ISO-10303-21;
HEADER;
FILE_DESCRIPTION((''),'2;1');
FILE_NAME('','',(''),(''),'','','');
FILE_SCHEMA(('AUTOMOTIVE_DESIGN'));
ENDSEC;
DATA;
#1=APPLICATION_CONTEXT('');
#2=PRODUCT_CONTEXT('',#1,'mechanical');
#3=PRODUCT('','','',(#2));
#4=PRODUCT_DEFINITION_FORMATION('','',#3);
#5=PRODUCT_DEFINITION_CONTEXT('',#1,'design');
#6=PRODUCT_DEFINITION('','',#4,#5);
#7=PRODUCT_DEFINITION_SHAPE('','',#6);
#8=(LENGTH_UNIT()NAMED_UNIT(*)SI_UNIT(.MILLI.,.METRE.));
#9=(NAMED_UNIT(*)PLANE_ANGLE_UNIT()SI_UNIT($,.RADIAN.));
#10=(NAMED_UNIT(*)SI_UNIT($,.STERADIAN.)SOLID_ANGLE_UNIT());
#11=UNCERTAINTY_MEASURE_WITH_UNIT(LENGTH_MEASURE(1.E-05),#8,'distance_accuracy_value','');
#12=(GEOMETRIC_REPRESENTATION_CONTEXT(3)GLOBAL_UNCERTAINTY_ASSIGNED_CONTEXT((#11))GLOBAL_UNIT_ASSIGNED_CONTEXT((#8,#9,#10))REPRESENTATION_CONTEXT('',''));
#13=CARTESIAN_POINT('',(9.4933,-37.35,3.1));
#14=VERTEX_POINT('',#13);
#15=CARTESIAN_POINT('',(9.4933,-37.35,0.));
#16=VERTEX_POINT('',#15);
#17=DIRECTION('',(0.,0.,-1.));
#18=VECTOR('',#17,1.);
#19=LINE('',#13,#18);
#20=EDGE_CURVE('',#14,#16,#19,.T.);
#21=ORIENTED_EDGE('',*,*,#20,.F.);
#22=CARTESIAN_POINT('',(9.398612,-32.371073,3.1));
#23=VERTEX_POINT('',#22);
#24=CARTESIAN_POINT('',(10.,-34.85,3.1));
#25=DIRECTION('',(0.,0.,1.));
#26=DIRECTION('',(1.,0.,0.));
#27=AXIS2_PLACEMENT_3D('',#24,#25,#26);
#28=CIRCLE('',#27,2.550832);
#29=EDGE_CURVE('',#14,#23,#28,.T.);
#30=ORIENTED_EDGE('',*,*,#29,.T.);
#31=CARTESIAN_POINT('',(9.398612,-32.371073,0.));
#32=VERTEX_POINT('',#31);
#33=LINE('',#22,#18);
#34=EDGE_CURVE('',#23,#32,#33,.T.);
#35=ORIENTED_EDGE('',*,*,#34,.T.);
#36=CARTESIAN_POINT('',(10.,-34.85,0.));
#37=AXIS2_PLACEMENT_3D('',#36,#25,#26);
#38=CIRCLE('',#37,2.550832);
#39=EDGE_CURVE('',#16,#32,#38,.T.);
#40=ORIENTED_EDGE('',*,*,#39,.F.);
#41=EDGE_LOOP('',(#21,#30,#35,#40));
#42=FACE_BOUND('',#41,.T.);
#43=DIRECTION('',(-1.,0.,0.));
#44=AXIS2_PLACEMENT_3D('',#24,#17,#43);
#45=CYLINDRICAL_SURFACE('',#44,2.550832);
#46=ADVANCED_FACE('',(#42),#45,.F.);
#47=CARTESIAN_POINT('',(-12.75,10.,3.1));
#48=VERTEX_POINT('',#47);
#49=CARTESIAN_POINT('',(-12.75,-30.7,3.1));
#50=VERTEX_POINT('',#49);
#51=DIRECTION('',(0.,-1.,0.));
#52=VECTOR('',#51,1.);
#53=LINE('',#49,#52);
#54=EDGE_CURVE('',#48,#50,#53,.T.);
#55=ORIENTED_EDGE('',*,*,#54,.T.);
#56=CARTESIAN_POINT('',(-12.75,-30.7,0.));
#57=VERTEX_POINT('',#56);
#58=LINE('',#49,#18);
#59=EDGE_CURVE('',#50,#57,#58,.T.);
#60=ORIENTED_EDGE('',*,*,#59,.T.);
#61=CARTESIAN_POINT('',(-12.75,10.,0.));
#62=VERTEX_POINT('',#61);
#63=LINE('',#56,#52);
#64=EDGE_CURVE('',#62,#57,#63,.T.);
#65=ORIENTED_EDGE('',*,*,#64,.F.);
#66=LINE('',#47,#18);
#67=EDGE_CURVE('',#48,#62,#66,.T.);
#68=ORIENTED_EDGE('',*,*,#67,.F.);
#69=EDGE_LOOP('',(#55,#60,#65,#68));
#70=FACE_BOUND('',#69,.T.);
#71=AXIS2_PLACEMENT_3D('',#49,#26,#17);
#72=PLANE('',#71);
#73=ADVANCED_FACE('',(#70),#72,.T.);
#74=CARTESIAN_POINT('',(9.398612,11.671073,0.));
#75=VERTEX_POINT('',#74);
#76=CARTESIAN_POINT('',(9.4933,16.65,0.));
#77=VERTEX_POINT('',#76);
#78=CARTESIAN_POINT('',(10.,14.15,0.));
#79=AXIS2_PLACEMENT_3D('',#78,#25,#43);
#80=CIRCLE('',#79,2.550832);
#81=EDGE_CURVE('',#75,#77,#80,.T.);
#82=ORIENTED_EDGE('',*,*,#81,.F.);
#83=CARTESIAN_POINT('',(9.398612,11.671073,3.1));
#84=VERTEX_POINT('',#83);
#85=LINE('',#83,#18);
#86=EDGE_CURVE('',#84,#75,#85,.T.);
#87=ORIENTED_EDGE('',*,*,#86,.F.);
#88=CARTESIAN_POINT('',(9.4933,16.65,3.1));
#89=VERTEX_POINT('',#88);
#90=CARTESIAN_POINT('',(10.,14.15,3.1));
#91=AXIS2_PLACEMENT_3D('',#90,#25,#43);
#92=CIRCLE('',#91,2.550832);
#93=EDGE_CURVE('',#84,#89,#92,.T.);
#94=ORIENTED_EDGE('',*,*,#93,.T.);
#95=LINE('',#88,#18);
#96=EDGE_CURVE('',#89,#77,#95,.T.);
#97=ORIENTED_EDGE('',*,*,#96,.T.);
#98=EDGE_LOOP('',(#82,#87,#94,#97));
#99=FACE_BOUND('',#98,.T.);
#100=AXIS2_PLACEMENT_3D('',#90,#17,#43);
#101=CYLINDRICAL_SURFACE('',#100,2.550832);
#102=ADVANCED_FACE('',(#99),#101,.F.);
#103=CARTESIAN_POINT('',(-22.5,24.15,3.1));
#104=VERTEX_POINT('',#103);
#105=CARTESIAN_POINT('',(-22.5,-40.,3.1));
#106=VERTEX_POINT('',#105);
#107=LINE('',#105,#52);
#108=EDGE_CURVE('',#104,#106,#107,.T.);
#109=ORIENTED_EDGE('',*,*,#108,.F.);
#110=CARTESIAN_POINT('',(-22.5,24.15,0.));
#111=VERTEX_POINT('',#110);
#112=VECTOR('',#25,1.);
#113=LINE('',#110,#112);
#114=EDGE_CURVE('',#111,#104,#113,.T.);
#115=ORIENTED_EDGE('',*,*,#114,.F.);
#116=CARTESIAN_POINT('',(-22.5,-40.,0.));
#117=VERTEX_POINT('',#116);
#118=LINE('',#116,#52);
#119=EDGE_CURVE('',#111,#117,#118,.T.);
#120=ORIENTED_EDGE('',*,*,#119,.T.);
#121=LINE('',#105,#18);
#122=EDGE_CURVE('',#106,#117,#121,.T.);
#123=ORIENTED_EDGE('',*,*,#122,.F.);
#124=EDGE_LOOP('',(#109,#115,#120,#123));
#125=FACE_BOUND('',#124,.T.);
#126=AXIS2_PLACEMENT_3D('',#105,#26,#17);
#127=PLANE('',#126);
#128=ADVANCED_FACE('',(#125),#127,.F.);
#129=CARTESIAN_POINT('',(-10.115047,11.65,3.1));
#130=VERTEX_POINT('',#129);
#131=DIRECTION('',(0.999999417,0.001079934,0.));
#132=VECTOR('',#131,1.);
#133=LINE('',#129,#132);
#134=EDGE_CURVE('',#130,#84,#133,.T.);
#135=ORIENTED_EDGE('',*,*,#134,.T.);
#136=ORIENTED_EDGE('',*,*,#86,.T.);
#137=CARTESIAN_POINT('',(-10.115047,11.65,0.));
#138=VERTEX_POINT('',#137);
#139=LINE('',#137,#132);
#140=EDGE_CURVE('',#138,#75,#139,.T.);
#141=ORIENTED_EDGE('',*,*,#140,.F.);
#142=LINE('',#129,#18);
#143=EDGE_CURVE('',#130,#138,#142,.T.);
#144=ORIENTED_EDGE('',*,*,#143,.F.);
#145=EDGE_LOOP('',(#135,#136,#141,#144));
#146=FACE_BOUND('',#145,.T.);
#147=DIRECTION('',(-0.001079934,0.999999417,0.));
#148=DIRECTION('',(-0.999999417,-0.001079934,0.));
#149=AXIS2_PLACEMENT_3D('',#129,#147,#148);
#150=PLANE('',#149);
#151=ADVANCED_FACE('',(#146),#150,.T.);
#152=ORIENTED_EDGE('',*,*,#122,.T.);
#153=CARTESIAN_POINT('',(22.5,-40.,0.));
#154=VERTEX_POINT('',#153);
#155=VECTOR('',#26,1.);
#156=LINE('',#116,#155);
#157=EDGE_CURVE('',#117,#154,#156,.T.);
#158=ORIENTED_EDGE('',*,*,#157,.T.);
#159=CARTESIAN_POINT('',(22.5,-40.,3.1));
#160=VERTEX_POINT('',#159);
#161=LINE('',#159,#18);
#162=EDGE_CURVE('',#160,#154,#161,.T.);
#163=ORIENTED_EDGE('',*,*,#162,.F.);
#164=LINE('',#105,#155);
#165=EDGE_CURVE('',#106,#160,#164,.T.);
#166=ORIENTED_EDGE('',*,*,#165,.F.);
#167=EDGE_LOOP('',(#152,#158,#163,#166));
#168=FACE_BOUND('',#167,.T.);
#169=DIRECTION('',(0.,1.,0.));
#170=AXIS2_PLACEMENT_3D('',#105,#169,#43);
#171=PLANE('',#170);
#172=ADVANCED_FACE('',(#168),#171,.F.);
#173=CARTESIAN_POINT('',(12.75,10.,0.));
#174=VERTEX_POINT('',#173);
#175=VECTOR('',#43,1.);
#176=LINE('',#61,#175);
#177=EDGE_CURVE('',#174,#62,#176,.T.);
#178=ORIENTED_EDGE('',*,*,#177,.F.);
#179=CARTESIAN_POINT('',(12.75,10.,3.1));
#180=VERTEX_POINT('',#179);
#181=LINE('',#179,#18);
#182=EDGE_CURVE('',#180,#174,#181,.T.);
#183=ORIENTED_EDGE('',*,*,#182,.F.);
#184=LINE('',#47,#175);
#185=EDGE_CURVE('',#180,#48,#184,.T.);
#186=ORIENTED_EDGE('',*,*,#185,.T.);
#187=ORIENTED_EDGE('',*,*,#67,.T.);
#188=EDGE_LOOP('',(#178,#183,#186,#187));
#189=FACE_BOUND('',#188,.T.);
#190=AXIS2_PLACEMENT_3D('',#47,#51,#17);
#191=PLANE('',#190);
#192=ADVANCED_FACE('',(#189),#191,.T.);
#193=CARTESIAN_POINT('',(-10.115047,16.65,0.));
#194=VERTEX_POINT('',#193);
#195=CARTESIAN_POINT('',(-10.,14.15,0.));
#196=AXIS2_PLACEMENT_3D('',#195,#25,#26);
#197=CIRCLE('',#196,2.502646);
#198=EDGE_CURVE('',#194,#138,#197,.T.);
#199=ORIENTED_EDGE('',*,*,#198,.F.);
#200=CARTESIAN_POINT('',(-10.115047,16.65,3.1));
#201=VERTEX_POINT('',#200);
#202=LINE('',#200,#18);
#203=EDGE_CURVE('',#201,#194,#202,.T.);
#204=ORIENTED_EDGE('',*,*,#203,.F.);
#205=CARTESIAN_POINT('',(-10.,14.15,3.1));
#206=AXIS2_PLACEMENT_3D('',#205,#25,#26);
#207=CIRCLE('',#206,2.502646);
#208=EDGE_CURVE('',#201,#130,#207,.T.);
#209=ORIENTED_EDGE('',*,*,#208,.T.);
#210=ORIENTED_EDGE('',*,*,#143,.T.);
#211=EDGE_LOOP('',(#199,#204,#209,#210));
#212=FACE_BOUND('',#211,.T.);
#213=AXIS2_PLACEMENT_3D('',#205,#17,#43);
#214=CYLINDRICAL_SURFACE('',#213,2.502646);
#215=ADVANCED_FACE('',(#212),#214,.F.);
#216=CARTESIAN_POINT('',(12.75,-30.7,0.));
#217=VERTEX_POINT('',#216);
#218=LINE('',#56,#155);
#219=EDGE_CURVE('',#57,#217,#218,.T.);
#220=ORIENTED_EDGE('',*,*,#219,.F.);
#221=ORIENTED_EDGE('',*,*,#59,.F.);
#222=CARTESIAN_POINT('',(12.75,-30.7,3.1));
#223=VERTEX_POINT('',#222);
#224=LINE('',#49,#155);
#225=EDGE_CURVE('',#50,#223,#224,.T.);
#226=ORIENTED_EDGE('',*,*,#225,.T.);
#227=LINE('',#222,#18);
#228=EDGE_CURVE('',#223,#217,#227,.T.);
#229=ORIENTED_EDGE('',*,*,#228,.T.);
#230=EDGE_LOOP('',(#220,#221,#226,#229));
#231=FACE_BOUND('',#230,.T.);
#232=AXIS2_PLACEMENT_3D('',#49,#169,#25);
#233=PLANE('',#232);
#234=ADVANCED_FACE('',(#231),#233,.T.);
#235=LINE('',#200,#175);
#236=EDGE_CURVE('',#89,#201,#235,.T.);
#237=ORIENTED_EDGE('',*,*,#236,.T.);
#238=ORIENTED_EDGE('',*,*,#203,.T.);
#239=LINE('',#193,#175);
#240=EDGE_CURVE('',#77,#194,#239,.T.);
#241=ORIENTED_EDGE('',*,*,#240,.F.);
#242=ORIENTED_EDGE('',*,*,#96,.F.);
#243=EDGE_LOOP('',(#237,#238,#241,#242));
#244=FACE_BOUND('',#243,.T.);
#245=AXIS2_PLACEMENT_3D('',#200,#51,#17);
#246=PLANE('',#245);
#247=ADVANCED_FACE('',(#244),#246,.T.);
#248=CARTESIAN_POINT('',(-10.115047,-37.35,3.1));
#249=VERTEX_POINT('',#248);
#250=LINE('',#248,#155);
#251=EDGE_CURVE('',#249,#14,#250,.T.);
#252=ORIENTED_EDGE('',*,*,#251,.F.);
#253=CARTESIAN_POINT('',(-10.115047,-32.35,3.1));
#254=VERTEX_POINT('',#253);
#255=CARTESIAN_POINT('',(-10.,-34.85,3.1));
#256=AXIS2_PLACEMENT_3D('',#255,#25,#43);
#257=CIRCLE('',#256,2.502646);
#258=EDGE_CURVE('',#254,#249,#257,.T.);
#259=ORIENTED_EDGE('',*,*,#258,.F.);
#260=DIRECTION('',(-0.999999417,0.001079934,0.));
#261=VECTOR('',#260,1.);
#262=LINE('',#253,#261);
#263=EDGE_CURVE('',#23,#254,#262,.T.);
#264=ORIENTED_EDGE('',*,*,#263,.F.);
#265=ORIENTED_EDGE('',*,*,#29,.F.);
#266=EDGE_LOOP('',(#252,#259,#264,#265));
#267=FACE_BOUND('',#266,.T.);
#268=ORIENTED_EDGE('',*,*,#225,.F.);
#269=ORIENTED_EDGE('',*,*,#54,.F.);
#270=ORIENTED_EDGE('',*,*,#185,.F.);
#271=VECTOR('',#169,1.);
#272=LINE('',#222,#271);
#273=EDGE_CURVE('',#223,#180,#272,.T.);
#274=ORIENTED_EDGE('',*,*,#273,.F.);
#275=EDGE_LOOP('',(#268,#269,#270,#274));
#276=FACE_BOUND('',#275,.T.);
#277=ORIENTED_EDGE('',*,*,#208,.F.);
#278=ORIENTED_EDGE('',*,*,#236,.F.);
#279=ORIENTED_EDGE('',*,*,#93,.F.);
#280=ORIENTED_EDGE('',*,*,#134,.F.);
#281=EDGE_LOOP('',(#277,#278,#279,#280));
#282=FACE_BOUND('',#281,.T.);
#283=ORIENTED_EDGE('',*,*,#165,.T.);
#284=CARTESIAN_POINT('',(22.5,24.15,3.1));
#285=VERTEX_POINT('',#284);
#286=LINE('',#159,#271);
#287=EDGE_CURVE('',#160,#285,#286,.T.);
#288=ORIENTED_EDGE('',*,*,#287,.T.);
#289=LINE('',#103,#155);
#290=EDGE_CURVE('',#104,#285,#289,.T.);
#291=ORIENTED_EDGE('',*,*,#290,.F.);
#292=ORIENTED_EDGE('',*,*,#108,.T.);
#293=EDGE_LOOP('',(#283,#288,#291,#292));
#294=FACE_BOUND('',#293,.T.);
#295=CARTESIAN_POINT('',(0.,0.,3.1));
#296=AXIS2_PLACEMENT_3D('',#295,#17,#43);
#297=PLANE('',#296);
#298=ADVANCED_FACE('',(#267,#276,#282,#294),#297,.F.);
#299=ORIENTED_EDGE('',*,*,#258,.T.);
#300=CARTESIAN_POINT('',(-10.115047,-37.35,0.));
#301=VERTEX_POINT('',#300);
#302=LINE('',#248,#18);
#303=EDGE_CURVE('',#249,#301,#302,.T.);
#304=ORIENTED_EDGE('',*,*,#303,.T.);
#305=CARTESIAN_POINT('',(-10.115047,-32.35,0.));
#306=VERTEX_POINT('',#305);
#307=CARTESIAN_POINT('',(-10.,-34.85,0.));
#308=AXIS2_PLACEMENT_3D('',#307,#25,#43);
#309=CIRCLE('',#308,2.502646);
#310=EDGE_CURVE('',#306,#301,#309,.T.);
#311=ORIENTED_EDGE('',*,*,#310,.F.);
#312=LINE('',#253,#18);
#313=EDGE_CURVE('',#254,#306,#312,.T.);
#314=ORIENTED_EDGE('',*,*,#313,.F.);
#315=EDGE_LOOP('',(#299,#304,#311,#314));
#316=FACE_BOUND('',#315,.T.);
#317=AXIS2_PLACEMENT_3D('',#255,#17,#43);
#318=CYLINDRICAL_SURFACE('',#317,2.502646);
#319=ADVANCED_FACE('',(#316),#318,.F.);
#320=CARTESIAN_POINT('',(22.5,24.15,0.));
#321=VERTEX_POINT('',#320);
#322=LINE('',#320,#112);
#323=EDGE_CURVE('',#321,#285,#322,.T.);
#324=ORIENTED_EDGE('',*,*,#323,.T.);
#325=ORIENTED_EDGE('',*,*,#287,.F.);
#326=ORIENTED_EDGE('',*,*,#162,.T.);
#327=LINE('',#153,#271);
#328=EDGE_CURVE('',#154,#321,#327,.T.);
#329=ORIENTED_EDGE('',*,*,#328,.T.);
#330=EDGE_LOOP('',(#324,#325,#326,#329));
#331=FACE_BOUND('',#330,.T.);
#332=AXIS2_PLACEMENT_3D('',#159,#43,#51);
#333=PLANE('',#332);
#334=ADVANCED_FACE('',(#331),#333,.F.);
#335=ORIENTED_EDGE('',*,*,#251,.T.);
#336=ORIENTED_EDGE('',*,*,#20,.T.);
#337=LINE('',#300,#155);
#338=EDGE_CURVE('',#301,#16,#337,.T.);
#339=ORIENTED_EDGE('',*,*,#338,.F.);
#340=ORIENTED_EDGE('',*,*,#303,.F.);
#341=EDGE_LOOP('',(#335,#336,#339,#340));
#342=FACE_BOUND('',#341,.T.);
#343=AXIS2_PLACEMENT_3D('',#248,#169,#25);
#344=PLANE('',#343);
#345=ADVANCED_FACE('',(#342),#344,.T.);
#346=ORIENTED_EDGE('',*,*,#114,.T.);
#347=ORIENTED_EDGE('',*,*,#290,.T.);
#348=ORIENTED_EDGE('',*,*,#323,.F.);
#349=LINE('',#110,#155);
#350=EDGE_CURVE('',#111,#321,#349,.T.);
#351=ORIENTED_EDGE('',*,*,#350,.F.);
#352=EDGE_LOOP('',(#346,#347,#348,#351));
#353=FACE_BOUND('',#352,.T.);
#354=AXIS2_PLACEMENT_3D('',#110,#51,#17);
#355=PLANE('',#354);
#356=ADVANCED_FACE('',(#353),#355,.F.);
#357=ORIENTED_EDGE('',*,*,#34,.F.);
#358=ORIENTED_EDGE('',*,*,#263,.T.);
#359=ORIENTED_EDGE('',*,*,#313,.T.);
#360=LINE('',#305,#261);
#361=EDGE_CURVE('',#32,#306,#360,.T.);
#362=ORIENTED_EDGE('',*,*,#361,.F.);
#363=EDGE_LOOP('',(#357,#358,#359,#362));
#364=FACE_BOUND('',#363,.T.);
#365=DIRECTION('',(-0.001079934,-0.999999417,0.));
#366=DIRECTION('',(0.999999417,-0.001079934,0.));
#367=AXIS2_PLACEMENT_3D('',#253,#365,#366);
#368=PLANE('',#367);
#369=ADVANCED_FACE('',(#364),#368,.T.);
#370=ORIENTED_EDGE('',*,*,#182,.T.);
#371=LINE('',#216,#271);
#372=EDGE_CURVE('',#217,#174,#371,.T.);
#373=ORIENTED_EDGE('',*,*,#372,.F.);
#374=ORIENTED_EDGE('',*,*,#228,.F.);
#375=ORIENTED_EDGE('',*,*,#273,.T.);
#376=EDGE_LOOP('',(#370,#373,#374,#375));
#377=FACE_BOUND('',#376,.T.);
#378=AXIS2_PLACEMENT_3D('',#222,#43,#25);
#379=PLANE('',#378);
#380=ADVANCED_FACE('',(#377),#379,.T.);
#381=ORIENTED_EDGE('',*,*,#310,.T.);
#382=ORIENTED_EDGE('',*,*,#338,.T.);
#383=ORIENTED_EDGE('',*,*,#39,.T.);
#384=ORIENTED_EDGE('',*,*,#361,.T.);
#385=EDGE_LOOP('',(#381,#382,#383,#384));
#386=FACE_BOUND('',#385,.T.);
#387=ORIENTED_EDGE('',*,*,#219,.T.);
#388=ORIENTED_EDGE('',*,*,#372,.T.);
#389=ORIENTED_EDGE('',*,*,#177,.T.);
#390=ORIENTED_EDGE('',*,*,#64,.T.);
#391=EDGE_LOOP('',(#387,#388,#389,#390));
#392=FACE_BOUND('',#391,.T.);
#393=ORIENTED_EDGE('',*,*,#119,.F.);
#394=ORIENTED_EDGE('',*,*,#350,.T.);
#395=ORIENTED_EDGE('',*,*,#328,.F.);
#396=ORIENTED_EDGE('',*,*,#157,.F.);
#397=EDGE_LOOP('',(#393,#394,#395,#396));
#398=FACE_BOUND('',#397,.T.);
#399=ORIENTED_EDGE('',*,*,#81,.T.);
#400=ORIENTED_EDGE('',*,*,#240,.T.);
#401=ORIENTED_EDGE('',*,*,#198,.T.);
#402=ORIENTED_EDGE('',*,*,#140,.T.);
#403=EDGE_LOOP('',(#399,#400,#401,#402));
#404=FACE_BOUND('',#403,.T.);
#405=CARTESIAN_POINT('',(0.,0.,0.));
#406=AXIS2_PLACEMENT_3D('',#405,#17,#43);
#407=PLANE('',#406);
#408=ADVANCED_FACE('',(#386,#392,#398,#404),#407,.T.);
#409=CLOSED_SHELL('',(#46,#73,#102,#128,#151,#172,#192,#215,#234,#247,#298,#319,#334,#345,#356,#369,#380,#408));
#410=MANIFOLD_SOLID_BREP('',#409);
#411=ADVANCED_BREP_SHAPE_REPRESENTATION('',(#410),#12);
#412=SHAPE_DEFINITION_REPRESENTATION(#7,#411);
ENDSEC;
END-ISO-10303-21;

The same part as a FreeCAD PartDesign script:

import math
import FreeCAD as App
import Part
import Sketcher

V = App.Vector
Q = App.Units.Quantity

doc = App.newDocument("Part")
body = doc.addObject("PartDesign::Body", "Body")

# Sketch on XY plane
sketch1 = body.newObject("Sketcher::SketchObject", "Sketch")
sketch1.AttachmentSupport = (doc.getObject("XY_Plane"), [""])
sketch1.MapMode = "FlatFace"
sketch1.addGeometry([
    Part.LineSegment(V(-22.5, 40, 0), V(-22.5, -40, 0)),  # 0
    Part.LineSegment(V(-22.5, -40, 0), V(22.5, -40, 0)),  # 1
    Part.LineSegment(V(22.5, -40, 0), V(22.5, 40, 0)),  # 2
    Part.LineSegment(V(22.5, 40, 0), V(-22.5, 40, 0)),  # 3
    Part.ArcOfCircle(Part.Circle(V(-10, -34.85, 0), V(0, 0, 1), 2.502646), math.radians(92.634834), math.radians(267.365166)),  # 4
    Part.LineSegment(V(-10.115047, -32.35, 0), V(9.398612, -32.371073, 0)),  # 5
    Part.ArcOfCircle(Part.Circle(V(10, -34.85, 0), V(0, 0, 1), 2.550832), math.radians(-101.457501), math.radians(103.636524)),  # 6
    Part.LineSegment(V(9.4933, -37.35, 0), V(-10.115047, -37.35, 0)),  # 7
    Part.LineSegment(V(12.75, -30.7, 0), V(-12.75, -30.7, 0)),  # 8
    Part.LineSegment(V(-12.75, -30.7, 0), V(-12.75, 10, 0)),  # 9
    Part.LineSegment(V(-12.75, 10, 0), V(12.75, 10, 0)),  # 10
    Part.LineSegment(V(12.75, 10, 0), V(12.75, -30.7, 0)),  # 11
    Part.ArcOfCircle(Part.Circle(V(-10, 14.15, 0), V(0, 0, 1), 2.502646), math.radians(92.634834), math.radians(267.365166)),  # 12
    Part.LineSegment(V(-10.115047, 16.65, 0), V(9.4933, 16.65, 0)),  # 13
    Part.ArcOfCircle(Part.Circle(V(10, 14.15, 0), V(0, 0, 1), 2.550832), math.radians(-103.636524), math.radians(101.457501)),  # 14
    Part.LineSegment(V(9.398612, 11.671073, 0), V(-10.115047, 11.65, 0)),  # 15
], False)
sketch1.addConstraint([
    Sketcher.Constraint("Coincident", 0, 2, 1, 1),
    Sketcher.Constraint("Coincident", 1, 2, 2, 1),
    Sketcher.Constraint("Coincident", 2, 2, 3, 1),
    Sketcher.Constraint("Coincident", 3, 2, 0, 1),
    Sketcher.Constraint("Coincident", 4, 1, 5, 1),
    Sketcher.Constraint("Coincident", 5, 2, 6, 2),
    Sketcher.Constraint("Coincident", 6, 1, 7, 1),
    Sketcher.Constraint("Coincident", 7, 2, 4, 2),
    Sketcher.Constraint("Coincident", 8, 2, 9, 1),
    Sketcher.Constraint("Coincident", 9, 2, 10, 1),
    Sketcher.Constraint("Coincident", 10, 2, 11, 1),
    Sketcher.Constraint("Coincident", 11, 2, 8, 1),
    Sketcher.Constraint("Coincident", 12, 1, 13, 1),
    Sketcher.Constraint("Coincident", 13, 2, 14, 2),
    Sketcher.Constraint("Coincident", 14, 1, 15, 1),
    Sketcher.Constraint("Coincident", 15, 2, 12, 2),
    Sketcher.Constraint("Vertical", 0),
    Sketcher.Constraint("Horizontal", 1),
    Sketcher.Constraint("Vertical", 2),
    Sketcher.Constraint("Horizontal", 3),
    Sketcher.Constraint("Horizontal", 7),
    Sketcher.Constraint("Horizontal", 8),
    Sketcher.Constraint("Vertical", 9),
    Sketcher.Constraint("Horizontal", 10),
    Sketcher.Constraint("Vertical", 11),
    Sketcher.Constraint("Horizontal", 13),
    Sketcher.Constraint("Equal", 4, 12),
    Sketcher.Constraint("Equal", 6, 14),
    Sketcher.Constraint("Symmetric", 0, 2, 2, 2, -1, 1),
    Sketcher.Constraint("Symmetric", 4, 3, 6, 3, -2),
    Sketcher.Constraint("Symmetric", 12, 3, 14, 3, -2),
    Sketcher.Constraint("Vertical", 4, 3, 12, 3),
    Sketcher.Constraint("Vertical", 4, 1, 7, 2),
    Sketcher.Constraint("Vertical", 7, 2, 12, 1),
    Sketcher.Constraint("Vertical", 5, 2, 14, 1),
    Sketcher.Constraint("Vertical", 12, 1, 15, 2),
    Sketcher.Constraint("DistanceX", 1, 1, 1, 2, Q("45 mm")),
    Sketcher.Constraint("DistanceY", 0, 2, 0, 1, Q("80 mm")),
    Sketcher.Constraint("DistanceX", 8, 2, 8, 1, Q("25.5 mm")),
    Sketcher.Constraint("DistanceY", 9, 1, 9, 2, Q("40.7 mm")),
    Sketcher.Constraint("DistanceX", 4, 3, -1, 1, Q("10 mm")),
    Sketcher.Constraint("DistanceY", -1, 1, 9, 2, Q("10 mm")),
    Sketcher.Constraint("DistanceY", 4, 3, 12, 3, Q("49 mm")),
    Sketcher.Constraint("DistanceY", 6, 1, 4, 1, Q("5 mm")),
    Sketcher.Constraint("DistanceY", 4, 3, -1, 1, Q("34.85 mm")),
    Sketcher.Constraint("DistanceX", 8, 2, -1, 1, Q("12.75 mm")),
    Sketcher.Constraint("Radius", 4, Q("2.502646 mm")),
    Sketcher.Constraint("Radius", 6, Q("2.550832 mm")),
    Sketcher.Constraint("Distance", 5, Q("19.51367 mm")),
])
pad1 = body.newObject("PartDesign::Pad", "Pad")
pad1.Profile = sketch1
pad1.Length = 3.1

# Sketch on XY plane
sketch2 = body.newObject("Sketcher::SketchObject", "Sketch001")
sketch2.AttachmentSupport = (doc.getObject("XY_Plane"), [""])
sketch2.MapMode = "FlatFace"
sketch2.AttachmentOffset = App.Placement(V(0, 0, 3.1), App.Rotation())
sketch2.addGeometry([
    Part.LineSegment(V(-22.5, 40, 0), V(-22.5, 24.15, 0)),
    Part.LineSegment(V(-22.5, 24.15, 0), V(22.5, 24.15, 0)),
    Part.LineSegment(V(22.5, 24.15, 0), V(22.5, 40, 0)),
    Part.LineSegment(V(22.5, 40, 0), V(-22.5, 40, 0)),
], False)
sketch2.addConstraint([
    Sketcher.Constraint("Coincident", 0, 2, 1, 1),
    Sketcher.Constraint("Coincident", 1, 2, 2, 1),
    Sketcher.Constraint("Coincident", 2, 2, 3, 1),
    Sketcher.Constraint("Coincident", 3, 2, 0, 1),
    Sketcher.Constraint("Vertical", 0),
    Sketcher.Constraint("Horizontal", 1),
    Sketcher.Constraint("Vertical", 2),
    Sketcher.Constraint("Horizontal", 3),
    Sketcher.Constraint("DistanceX", 1, 1, 1, 2, Q("45 mm")),
    Sketcher.Constraint("DistanceY", -1, 1, 2, 2, Q("40 mm")),
    Sketcher.Constraint("DistanceY", 0, 2, 0, 1, Q("15.85 mm")),
    Sketcher.Constraint("DistanceX", 0, 2, -1, 1, Q("22.5 mm")),
])
pocket1 = body.newObject("PartDesign::Pocket", "Pocket")
pocket1.Profile = sketch2
pocket1.Type = "ThroughAll"

doc.recompute()
